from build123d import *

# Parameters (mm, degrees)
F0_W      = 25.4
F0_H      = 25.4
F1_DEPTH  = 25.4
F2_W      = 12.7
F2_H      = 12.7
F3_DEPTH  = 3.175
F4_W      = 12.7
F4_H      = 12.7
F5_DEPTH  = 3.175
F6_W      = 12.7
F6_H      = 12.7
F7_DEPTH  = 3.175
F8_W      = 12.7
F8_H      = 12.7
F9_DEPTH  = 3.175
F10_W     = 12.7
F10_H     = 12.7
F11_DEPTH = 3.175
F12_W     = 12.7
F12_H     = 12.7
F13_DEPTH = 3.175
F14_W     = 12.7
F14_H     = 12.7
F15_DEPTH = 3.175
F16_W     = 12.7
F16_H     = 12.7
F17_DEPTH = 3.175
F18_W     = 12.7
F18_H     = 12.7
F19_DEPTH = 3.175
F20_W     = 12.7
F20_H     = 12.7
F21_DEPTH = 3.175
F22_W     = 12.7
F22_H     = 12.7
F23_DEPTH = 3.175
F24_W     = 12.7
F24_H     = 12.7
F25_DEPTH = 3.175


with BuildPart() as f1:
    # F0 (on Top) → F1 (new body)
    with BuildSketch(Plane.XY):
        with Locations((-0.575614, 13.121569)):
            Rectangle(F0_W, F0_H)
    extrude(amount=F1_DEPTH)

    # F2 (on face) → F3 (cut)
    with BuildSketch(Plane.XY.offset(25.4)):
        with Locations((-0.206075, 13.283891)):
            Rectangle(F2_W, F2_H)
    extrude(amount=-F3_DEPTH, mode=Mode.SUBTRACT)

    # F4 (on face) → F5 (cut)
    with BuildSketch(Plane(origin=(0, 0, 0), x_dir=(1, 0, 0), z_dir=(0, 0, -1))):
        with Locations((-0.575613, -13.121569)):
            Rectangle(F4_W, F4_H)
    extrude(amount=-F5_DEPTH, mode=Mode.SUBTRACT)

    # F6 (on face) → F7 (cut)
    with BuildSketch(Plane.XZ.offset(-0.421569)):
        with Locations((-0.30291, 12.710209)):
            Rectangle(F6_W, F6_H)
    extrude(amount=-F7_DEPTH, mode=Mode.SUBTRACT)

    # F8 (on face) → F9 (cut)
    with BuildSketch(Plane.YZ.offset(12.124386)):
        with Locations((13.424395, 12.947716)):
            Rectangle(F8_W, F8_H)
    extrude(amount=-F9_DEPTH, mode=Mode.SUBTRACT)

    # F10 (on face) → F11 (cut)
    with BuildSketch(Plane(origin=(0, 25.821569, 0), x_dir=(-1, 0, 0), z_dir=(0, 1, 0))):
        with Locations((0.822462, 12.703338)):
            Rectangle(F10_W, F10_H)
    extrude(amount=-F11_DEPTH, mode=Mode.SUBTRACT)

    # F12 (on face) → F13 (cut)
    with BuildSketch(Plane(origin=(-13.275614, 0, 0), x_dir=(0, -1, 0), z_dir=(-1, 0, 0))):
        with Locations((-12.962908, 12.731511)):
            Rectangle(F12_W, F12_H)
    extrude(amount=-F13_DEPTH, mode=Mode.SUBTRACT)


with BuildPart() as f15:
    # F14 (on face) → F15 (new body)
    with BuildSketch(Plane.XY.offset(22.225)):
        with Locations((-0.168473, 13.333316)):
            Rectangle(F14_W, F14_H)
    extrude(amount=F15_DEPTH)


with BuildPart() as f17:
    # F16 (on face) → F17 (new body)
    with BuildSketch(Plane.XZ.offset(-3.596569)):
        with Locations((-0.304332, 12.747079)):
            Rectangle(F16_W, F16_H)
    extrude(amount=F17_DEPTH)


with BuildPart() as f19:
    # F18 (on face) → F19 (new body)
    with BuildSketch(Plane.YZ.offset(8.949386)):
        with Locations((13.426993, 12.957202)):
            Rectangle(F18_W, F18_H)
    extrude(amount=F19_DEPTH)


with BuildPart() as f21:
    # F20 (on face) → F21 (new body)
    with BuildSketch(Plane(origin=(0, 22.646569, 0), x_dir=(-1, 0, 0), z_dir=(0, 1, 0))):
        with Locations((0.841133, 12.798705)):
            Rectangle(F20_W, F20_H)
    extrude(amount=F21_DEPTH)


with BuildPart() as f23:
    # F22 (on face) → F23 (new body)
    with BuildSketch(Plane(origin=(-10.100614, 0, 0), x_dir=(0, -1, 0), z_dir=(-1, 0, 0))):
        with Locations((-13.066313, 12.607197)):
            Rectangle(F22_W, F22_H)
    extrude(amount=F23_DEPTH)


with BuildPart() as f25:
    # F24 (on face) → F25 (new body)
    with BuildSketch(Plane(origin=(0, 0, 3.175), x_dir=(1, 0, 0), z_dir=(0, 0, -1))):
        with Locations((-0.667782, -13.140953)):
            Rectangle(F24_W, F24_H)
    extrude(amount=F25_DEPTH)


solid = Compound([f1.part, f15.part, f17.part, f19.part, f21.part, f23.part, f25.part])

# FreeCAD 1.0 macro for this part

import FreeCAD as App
import Part
import Sketcher

V = App.Vector
Q = App.Units.Quantity


def add_polygon(sketch, points):
    """Adds a closed chain of lines whose ends are joined by coincident constraints."""
    first, n = sketch.GeometryCount, len(points)
    for a, b in zip(points, points[1:] + points[:1]):
        sketch.addGeometry(Part.LineSegment(App.Vector(*a, 0), App.Vector(*b, 0)), False)
    for i in range(n):
        sketch.addConstraint(Sketcher.Constraint("Coincident", first + i, 2, first + (i + 1) % n, 1))

doc = App.newDocument("Part")
body = doc.addObject("PartDesign::Body", "Body")

# Sketch on XY plane
sketch1 = body.newObject("Sketcher::SketchObject", "Sketch")
sketch1.AttachmentSupport = (doc.getObject("XY_Plane"), [""])
sketch1.MapMode = "FlatFace"
add_polygon(sketch1, [(-13.275614, 25.821569), (-13.275614, 0.421569), (12.124386, 0.421569), (12.124386, 25.821569)])  # lines 0-3
sketch1.addConstraint([
    Sketcher.Constraint("Vertical", 0),
    Sketcher.Constraint("Horizontal", 1),
    Sketcher.Constraint("Vertical", 2),
    Sketcher.Constraint("Horizontal", 3),
    Sketcher.Constraint("Equal", 3, 0),
    Sketcher.Constraint("DistanceX", 1, 1, 1, 2, Q("1 in")),
    Sketcher.Constraint("DistanceY", -1, 1, 0, 2, 0.421569),
    Sketcher.Constraint("DistanceX", 0, 2, -1, 1, 13.275614),
])
pad1 = body.newObject("PartDesign::Pad", "Pad")
pad1.Profile = sketch1
pad1.Length = Q("1 in")

# Sketch on XY plane
sketch2 = body.newObject("Sketcher::SketchObject", "Sketch001")
sketch2.AttachmentSupport = (doc.getObject("XY_Plane"), [""])
sketch2.MapMode = "FlatFace"
sketch2.AttachmentOffset = App.Placement(V(0, 0, 1 * 25.4), App.Rotation())
add_polygon(sketch2, [(-6.556075, 19.633891), (-6.556075, 6.933891), (6.143925, 6.933891), (6.143925, 19.633891)])  # lines 0-3
sketch2.addConstraint([
    Sketcher.Constraint("Vertical", 0),
    Sketcher.Constraint("Horizontal", 1),
    Sketcher.Constraint("Vertical", 2),
    Sketcher.Constraint("Horizontal", 3),
    Sketcher.Constraint("Equal", 3, 0),
    Sketcher.Constraint("DistanceX", 1, 1, 1, 2, Q("0.5 in")),
    Sketcher.Constraint("DistanceY", -1, 1, 0, 2, 6.933891),
    Sketcher.Constraint("DistanceX", 0, 2, -1, 1, 6.556075),
])
pocket1 = body.newObject("PartDesign::Pocket", "Pocket")
pocket1.Profile = sketch2
pocket1.Length = Q("0.125 in")

# Sketch on XY plane
sketch3 = body.newObject("Sketcher::SketchObject", "Sketch002")
sketch3.AttachmentSupport = (doc.getObject("XY_Plane"), [""])
sketch3.MapMode = "FlatFace"
add_polygon(sketch3, [(-6.925613, 6.771569), (-6.925613, 19.471569), (5.774387, 19.471569), (5.774387, 6.771569)])  # lines 0-3
sketch3.addConstraint([
    Sketcher.Constraint("Vertical", 0),
    Sketcher.Constraint("Horizontal", 1),
    Sketcher.Constraint("Vertical", 2),
    Sketcher.Constraint("Horizontal", 3),
    Sketcher.Constraint("Equal", 3, 0),
    Sketcher.Constraint("DistanceX", 1, 1, 1, 2, Q("0.5 in")),
    Sketcher.Constraint("DistanceY", -1, 1, 0, 2, 19.471569),
    Sketcher.Constraint("DistanceX", 0, 2, -1, 1, 6.925613),
])
pocket2 = body.newObject("PartDesign::Pocket", "Pocket001")
pocket2.Profile = sketch3
pocket2.Length = Q("0.125 in")
pocket2.Reversed = True

# Sketch on XZ plane
sketch4 = body.newObject("Sketcher::SketchObject", "Sketch003")
sketch4.AttachmentSupport = (doc.getObject("XZ_Plane"), [""])
sketch4.MapMode = "FlatFace"
sketch4.AttachmentOffset = App.Placement(V(0, 0, -0.421569), App.Rotation())
add_polygon(sketch4, [(-6.65291, 19.060209), (-6.65291, 6.360209), (6.04709, 6.360209), (6.04709, 19.060209)])  # lines 0-3
sketch4.addConstraint([
    Sketcher.Constraint("Vertical", 0),
    Sketcher.Constraint("Horizontal", 1),
    Sketcher.Constraint("Vertical", 2),
    Sketcher.Constraint("Horizontal", 3),
    Sketcher.Constraint("Equal", 3, 0),
    Sketcher.Constraint("DistanceX", 1, 1, 1, 2, Q("0.5 in")),
    Sketcher.Constraint("DistanceX", 0, 2, -1, 1, 6.65291),
    Sketcher.Constraint("DistanceY", -1, 1, 0, 2, 6.360209),
])
pocket3 = body.newObject("PartDesign::Pocket", "Pocket002")
pocket3.Profile = sketch4
pocket3.Length = Q("0.125 in")

# Sketch on YZ plane
sketch5 = body.newObject("Sketcher::SketchObject", "Sketch004")
sketch5.AttachmentSupport = (doc.getObject("YZ_Plane"), [""])
sketch5.MapMode = "FlatFace"
sketch5.AttachmentOffset = App.Placement(V(0, 0, 12.124386), App.Rotation())
add_polygon(sketch5, [(7.074395, 19.297716), (7.074395, 6.597716), (19.774395, 6.597716), (19.774395, 19.297716)])  # lines 0-3
sketch5.addConstraint([
    Sketcher.Constraint("Vertical", 0),
    Sketcher.Constraint("Horizontal", 1),
    Sketcher.Constraint("Vertical", 2),
    Sketcher.Constraint("Horizontal", 3),
    Sketcher.Constraint("Equal", 3, 0),
    Sketcher.Constraint("DistanceX", 1, 1, 1, 2, Q("0.5 in")),
    Sketcher.Constraint("DistanceX", -1, 1, 0, 2, 7.074395),
    Sketcher.Constraint("DistanceY", -1, 1, 0, 2, 6.597716),
])
pocket4 = body.newObject("PartDesign::Pocket", "Pocket003")
pocket4.Profile = sketch5
pocket4.Length = Q("0.125 in")

# Sketch on XZ plane
sketch6 = body.newObject("Sketcher::SketchObject", "Sketch005")
sketch6.AttachmentSupport = (doc.getObject("XZ_Plane"), [""])
sketch6.MapMode = "FlatFace"
sketch6.AttachmentOffset = App.Placement(V(0, 0, -25.821569), App.Rotation())
add_polygon(sketch6, [(5.527538, 19.053338), (5.527538, 6.353338), (-7.172462, 6.353338), (-7.172462, 19.053338)])  # lines 0-3
sketch6.addConstraint([
    Sketcher.Constraint("Vertical", 0),
    Sketcher.Constraint("Horizontal", 1),
    Sketcher.Constraint("Vertical", 2),
    Sketcher.Constraint("Horizontal", 3),
    Sketcher.Constraint("Equal", 3, 0),
    Sketcher.Constraint("DistanceX", 1, 2, 1, 1, Q("0.5 in")),
    Sketcher.Constraint("DistanceY", -1, 1, 2, 2, 19.053338),
    Sketcher.Constraint("DistanceX", -1, 1, 0, 2, 5.527538),
])
pocket5 = body.newObject("PartDesign::Pocket", "Pocket004")
pocket5.Profile = sketch6
pocket5.Length = Q("0.125 in")
pocket5.Reversed = True

# Sketch on YZ plane
sketch7 = body.newObject("Sketcher::SketchObject", "Sketch006")
sketch7.AttachmentSupport = (doc.getObject("YZ_Plane"), [""])
sketch7.MapMode = "FlatFace"
sketch7.AttachmentOffset = App.Placement(V(0, 0, -13.275614), App.Rotation())
add_polygon(sketch7, [(19.312908, 19.081511), (19.312908, 6.381511), (6.612908, 6.381511), (6.612908, 19.081511)])  # lines 0-3
sketch7.addConstraint([
    Sketcher.Constraint("Vertical", 0),
    Sketcher.Constraint("Horizontal", 1),
    Sketcher.Constraint("Vertical", 2),
    Sketcher.Constraint("Horizontal", 3),
    Sketcher.Constraint("Equal", 3, 0),
    Sketcher.Constraint("DistanceX", 1, 2, 1, 1, Q("0.5 in")),
    Sketcher.Constraint("DistanceX", -1, 1, 0, 2, 19.312908),
    Sketcher.Constraint("DistanceY", -1, 1, 0, 2, 6.381511),
])
pocket6 = body.newObject("PartDesign::Pocket", "Pocket005")
pocket6.Profile = sketch7
pocket6.Length = Q("0.125 in")
pocket6.Reversed = True
body2 = doc.addObject("PartDesign::Body", "Body001")

# Sketch on XY plane
sketch8 = body2.newObject("Sketcher::SketchObject", "Sketch007")
sketch8.AttachmentSupport = (doc.getObject("XY_Plane001"), [""])
sketch8.MapMode = "FlatFace"
sketch8.AttachmentOffset = App.Placement(V(0, 0, 0.875 * 25.4), App.Rotation())
add_polygon(sketch8, [(-6.518473, 19.683316), (-6.518473, 6.983316), (6.181527, 6.983316), (6.181527, 19.683316)])  # lines 0-3
sketch8.addConstraint([
    Sketcher.Constraint("Vertical", 0),
    Sketcher.Constraint("Horizontal", 1),
    Sketcher.Constraint("Vertical", 2),
    Sketcher.Constraint("Horizontal", 3),
    Sketcher.Constraint("Equal", 3, 0),
    Sketcher.Constraint("DistanceX", 1, 1, 1, 2, Q("0.5 in")),
    Sketcher.Constraint("DistanceX", 0, 2, -1, 1, 6.518473),
    Sketcher.Constraint("DistanceY", -1, 1, 0, 2, 6.983316),
])
pad2 = body2.newObject("PartDesign::Pad", "Pad001")
pad2.Profile = sketch8
pad2.Length = Q("0.125 in")
body3 = doc.addObject("PartDesign::Body", "Body002")

# Sketch on XZ plane
sketch9 = body3.newObject("Sketcher::SketchObject", "Sketch008")
sketch9.AttachmentSupport = (doc.getObject("XZ_Plane002"), [""])
sketch9.MapMode = "FlatFace"
sketch9.AttachmentOffset = App.Placement(V(0, 0, -3.596569), App.Rotation())
add_polygon(sketch9, [(-6.654332, 19.097079), (-6.654332, 6.397079), (6.045668, 6.397079), (6.045668, 19.097079)])  # lines 0-3
sketch9.addConstraint([
    Sketcher.Constraint("Vertical", 0),
    Sketcher.Constraint("Horizontal", 1),
    Sketcher.Constraint("Vertical", 2),
    Sketcher.Constraint("Horizontal", 3),
    Sketcher.Constraint("Equal", 3, 0),
    Sketcher.Constraint("DistanceX", 1, 1, 1, 2, Q("0.5 in")),
    Sketcher.Constraint("DistanceY", -1, 1, 0, 2, 6.397079),
    Sketcher.Constraint("DistanceX", 0, 2, -1, 1, 6.654332),
])
pad3 = body3.newObject("PartDesign::Pad", "Pad002")
pad3.Profile = sketch9
pad3.Length = Q("0.125 in")
body4 = doc.addObject("PartDesign::Body", "Body003")

# Sketch on YZ plane
sketch10 = body4.newObject("Sketcher::SketchObject", "Sketch009")
sketch10.AttachmentSupport = (doc.getObject("YZ_Plane003"), [""])
sketch10.MapMode = "FlatFace"
sketch10.AttachmentOffset = App.Placement(V(0, 0, 8.949386), App.Rotation())
add_polygon(sketch10, [(7.076993, 19.307202), (7.076993, 6.607202), (19.776993, 6.607202), (19.776993, 19.307202)])  # lines 0-3
sketch10.addConstraint([
    Sketcher.Constraint("Vertical", 0),
    Sketcher.Constraint("Horizontal", 1),
    Sketcher.Constraint("Vertical", 2),
    Sketcher.Constraint("Horizontal", 3),
    Sketcher.Constraint("Equal", 3, 0),
    Sketcher.Constraint("DistanceX", 1, 1, 1, 2, Q("0.5 in")),
    Sketcher.Constraint("DistanceY", -1, 1, 2, 2, 19.307202),
    Sketcher.Constraint("DistanceX", -1, 1, 0, 2, 7.076993),
])
pad4 = body4.newObject("PartDesign::Pad", "Pad003")
pad4.Profile = sketch10
pad4.Length = Q("0.125 in")
body5 = doc.addObject("PartDesign::Body", "Body004")

# Sketch on XZ plane
sketch11 = body5.newObject("Sketcher::SketchObject", "Sketch010")
sketch11.AttachmentSupport = (doc.getObject("XZ_Plane004"), [""])
sketch11.MapMode = "FlatFace"
sketch11.AttachmentOffset = App.Placement(V(0, 0, -22.646569), App.Rotation())
add_polygon(sketch11, [(5.508867, 19.148705), (5.508867, 6.448705), (-7.191133, 6.448705), (-7.191133, 19.148705)])  # lines 0-3
sketch11.addConstraint([
    Sketcher.Constraint("Vertical", 0),
    Sketcher.Constraint("Horizontal", 1),
    Sketcher.Constraint("Vertical", 2),
    Sketcher.Constraint("Horizontal", 3),
    Sketcher.Constraint("Equal", 3, 0),
    Sketcher.Constraint("DistanceX", 1, 2, 1, 1, Q("0.5 in")),
    Sketcher.Constraint("DistanceX", -1, 1, 0, 2, 5.508867),
    Sketcher.Constraint("DistanceY", -1, 1, 0, 2, 6.448705),
])
pad5 = body5.newObject("PartDesign::Pad", "Pad004")
pad5.Profile = sketch11
pad5.Length = Q("0.125 in")
pad5.Reversed = True
body6 = doc.addObject("PartDesign::Body", "Body005")

# Sketch on YZ plane
sketch12 = body6.newObject("Sketcher::SketchObject", "Sketch011")
sketch12.AttachmentSupport = (doc.getObject("YZ_Plane005"), [""])
sketch12.MapMode = "FlatFace"
sketch12.AttachmentOffset = App.Placement(V(0, 0, -10.100614), App.Rotation())
add_polygon(sketch12, [(19.416313, 18.957197), (19.416313, 6.257197), (6.716313, 6.257197), (6.716313, 18.957197)])  # lines 0-3
sketch12.addConstraint([
    Sketcher.Constraint("Vertical", 0),
    Sketcher.Constraint("Horizontal", 1),
    Sketcher.Constraint("Vertical", 2),
    Sketcher.Constraint("Horizontal", 3),
    Sketcher.Constraint("Equal", 3, 0),
    Sketcher.Constraint("DistanceX", 1, 2, 1, 1, Q("0.5 in")),
    Sketcher.Constraint("DistanceX", -1, 1, 0, 2, 19.416313),
    Sketcher.Constraint("DistanceY", -1, 1, 0, 2, 6.257197),
])
pad6 = body6.newObject("PartDesign::Pad", "Pad005")
pad6.Profile = sketch12
pad6.Length = Q("0.125 in")
pad6.Reversed = True
body7 = doc.addObject("PartDesign::Body", "Body006")

# Sketch on XY plane
sketch13 = body7.newObject("Sketcher::SketchObject", "Sketch012")
sketch13.AttachmentSupport = (doc.getObject("XY_Plane006"), [""])
sketch13.MapMode = "FlatFace"
sketch13.AttachmentOffset = App.Placement(V(0, 0, 0.125 * 25.4), App.Rotation())
add_polygon(sketch13, [(-7.017782, 6.790953), (-7.017782, 19.490953), (5.682218, 19.490953), (5.682218, 6.790953)])  # lines 0-3
sketch13.addConstraint([
    Sketcher.Constraint("Vertical", 0),
    Sketcher.Constraint("Horizontal", 1),
    Sketcher.Constraint("Vertical", 2),
    Sketcher.Constraint("Horizontal", 3),
    Sketcher.Constraint("Equal", 3, 0),
    Sketcher.Constraint("DistanceX", 1, 1, 1, 2, Q("0.5 in")),
    Sketcher.Constraint("DistanceX", 0, 2, -1, 1, 7.017782),
    Sketcher.Constraint("DistanceY", -1, 1, 0, 2, 19.490953),
])
pad7 = body7.newObject("PartDesign::Pad", "Pad006")
pad7.Profile = sketch13
pad7.Length = Q("0.125 in")
pad7.Reversed = True

doc.recompute()
